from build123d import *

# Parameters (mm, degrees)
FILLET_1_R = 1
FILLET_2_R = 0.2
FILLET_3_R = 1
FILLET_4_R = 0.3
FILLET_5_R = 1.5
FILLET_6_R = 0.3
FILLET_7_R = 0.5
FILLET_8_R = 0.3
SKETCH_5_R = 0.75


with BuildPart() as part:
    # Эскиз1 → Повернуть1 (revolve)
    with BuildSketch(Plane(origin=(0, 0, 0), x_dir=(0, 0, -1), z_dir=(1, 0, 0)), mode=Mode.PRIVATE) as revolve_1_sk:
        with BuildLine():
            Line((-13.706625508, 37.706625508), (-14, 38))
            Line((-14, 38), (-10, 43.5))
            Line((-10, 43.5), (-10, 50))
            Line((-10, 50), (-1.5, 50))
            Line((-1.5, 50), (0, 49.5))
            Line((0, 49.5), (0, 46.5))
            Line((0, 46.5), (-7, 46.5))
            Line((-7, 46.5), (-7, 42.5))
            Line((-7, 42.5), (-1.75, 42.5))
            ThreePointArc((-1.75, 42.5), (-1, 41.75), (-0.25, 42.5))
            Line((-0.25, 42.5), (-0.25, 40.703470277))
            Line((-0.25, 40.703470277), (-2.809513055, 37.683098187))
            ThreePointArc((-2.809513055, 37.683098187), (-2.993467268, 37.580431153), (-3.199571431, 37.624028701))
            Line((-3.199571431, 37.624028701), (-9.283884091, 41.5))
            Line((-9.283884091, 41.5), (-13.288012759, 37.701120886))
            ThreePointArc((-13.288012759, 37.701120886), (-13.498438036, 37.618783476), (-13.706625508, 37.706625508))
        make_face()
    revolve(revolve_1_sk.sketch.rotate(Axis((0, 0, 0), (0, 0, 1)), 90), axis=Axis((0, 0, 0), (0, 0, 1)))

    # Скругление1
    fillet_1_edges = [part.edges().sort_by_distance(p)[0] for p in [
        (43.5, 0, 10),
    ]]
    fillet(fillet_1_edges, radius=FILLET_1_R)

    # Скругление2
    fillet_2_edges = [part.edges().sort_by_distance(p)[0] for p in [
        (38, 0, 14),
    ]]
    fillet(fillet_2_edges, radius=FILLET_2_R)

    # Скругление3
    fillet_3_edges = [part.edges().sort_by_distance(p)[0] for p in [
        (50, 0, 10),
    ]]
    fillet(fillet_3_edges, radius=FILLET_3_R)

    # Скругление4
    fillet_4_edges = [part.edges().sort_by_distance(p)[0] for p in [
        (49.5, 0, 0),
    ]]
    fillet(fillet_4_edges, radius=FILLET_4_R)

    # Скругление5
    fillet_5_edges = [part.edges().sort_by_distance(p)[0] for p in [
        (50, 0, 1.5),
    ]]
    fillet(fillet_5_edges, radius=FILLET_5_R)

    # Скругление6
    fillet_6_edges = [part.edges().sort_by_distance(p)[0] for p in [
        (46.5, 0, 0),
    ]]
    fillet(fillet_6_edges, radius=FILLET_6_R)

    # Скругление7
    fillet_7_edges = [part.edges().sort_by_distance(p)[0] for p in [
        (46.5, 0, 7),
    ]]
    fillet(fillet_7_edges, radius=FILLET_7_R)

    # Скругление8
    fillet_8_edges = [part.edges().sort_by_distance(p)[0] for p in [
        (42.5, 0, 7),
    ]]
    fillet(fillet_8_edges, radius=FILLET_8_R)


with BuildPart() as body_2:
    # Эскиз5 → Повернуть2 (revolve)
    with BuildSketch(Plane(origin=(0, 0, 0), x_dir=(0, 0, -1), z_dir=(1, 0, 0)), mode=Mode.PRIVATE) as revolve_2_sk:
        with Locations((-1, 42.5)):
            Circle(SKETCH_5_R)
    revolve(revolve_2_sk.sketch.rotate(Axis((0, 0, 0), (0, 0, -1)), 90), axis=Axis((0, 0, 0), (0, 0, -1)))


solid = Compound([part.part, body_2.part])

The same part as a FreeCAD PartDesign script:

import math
import FreeCAD as App
import Part
import Sketcher

V = App.Vector
Q = App.Units.Quantity


def edges_at(feature, points):
    """Names of the edges that pass closest to the given points."""
    edges = feature.Shape.Edges
    near = lambda p: min(range(len(edges)), key=lambda i: edges[i].distToShape(Part.Vertex(*p))[0])
    return sorted({f"Edge{near(p) + 1}" for p in points})

doc = App.newDocument("Part")
body = doc.addObject("PartDesign::Body", "Body")

sketch1 = body.newObject("Sketcher::SketchObject", "Sketch")
sketch1.AttachmentSupport = (doc.getObject("YZ_Plane"), [""])
sketch1.MapMode = "FlatFace"
sketch1.addGeometry([
    Part.LineSegment(V(38, 14, 0), V(37.706626, 13.706626, 0)),
    Part.ArcOfCircle(Part.Circle(V(37.918758, 13.494493, 0), V(0, 0, 1), 0.3), math.radians(135), math.radians(223.493245)),
    Part.LineSegment(V(37.701121, 13.288013, 0), V(41.5, 9.283884, 0)),
    Part.LineSegment(V(41.5, 9.283884, 0), V(37.624029, 3.199571, 0)),
    Part.ArcOfCircle(Part.Circle(V(37.877049, 3.038386, 0), V(0, 0, 1), 0.3), math.radians(147.501094), math.radians(229.72151)),
    Part.LineSegment(V(37.683098, 2.809513, 0), V(40.70347, 0.25, 0)),
    Part.LineSegment(V(40.70347, 0.25, 0), V(42.5, 0.25, 0)),
    Part.ArcOfCircle(Part.Circle(V(42.5, 1, 0), V(0, 0, 1), 0.75), math.radians(90), math.radians(270)),
    Part.LineSegment(V(42.5, 1.75, 0), V(42.5, 7, 0)),
    Part.LineSegment(V(42.5, 7, 0), V(46.5, 7, 0)),
    Part.LineSegment(V(46.5, 7, 0), V(46.5, 0, 0)),
    Part.LineSegment(V(46.5, 0, 0), V(49.5, 0, 0)),
    Part.LineSegment(V(49.5, 0, 0), V(50, 1.5, 0)),
    Part.LineSegment(V(50, 1.5, 0), V(50, 10, 0)),
    Part.LineSegment(V(50, 10, 0), V(43.5, 10, 0)),
    Part.LineSegment(V(43.5, 10, 0), V(38, 14, 0)),
], False)
sketch1.addConstraint([
    Sketcher.Constraint("Tangent", 0, 2, 1, 1),
    Sketcher.Constraint("Tangent", 1, 2, 2, 1),
    Sketcher.Constraint("Coincident", 2, 2, 3, 1),
    Sketcher.Constraint("Tangent", 3, 2, 4, 1),
    Sketcher.Constraint("Tangent", 4, 2, 5, 1),
    Sketcher.Constraint("Coincident", 5, 2, 6, 1),
    Sketcher.Constraint("Tangent", 6, 2, 7, 2),
    Sketcher.Constraint("Coincident", 7, 1, 8, 1),
    Sketcher.Constraint("Coincident", 8, 2, 9, 1),
    Sketcher.Constraint("Coincident", 9, 2, 10, 1),
    Sketcher.Constraint("Coincident", 10, 2, 11, 1),
    Sketcher.Constraint("Coincident", 11, 2, 12, 1),
    Sketcher.Constraint("Coincident", 12, 2, 13, 1),
    Sketcher.Constraint("Coincident", 13, 2, 14, 1),
    Sketcher.Constraint("Coincident", 14, 2, 15, 1),
    Sketcher.Constraint("Coincident", 15, 2, 0, 1),
    Sketcher.Constraint("Horizontal", 6),
    Sketcher.Constraint("Vertical", 8),
    Sketcher.Constraint("Horizontal", 9),
    Sketcher.Constraint("Vertical", 10),
    Sketcher.Constraint("Horizontal", 11),
    Sketcher.Constraint("Vertical", 13),
    Sketcher.Constraint("Horizontal", 14),
    Sketcher.Constraint("Equal", 1, 4),
    Sketcher.Constraint("PointOnObject", 10, 2, -1),
    Sketcher.Constraint("Vertical", 6, 2, 7, 1),
    Sketcher.Constraint("Radius", 1, Q("0.3 mm")),
    Sketcher.Constraint("DistanceX", 9, 1, 9, 2, Q("4 mm")),
    Sketcher.Constraint("DistanceX", 11, 1, 11, 2, Q("3 mm")),
    Sketcher.Constraint("DistanceY", 10, 2, 10, 1, Q("7 mm")),
    Sketcher.Constraint("Angle", 0, Q("-135 deg")),
    Sketcher.Constraint("Radius", 7, Q("0.75 mm")),
    Sketcher.Constraint("DistanceX", 14, 2, 14, 1, Q("6.5 mm")),
    Sketcher.Constraint("DistanceY", 13, 1, 13, 2, Q("8.5 mm")),
    Sketcher.Constraint("DistanceY", -1, 1, 7, 3, Q("1 mm")),
    Sketcher.Constraint("DistanceX", -1, 1, 12, 2, Q("50 mm")),
    Sketcher.Constraint("DistanceY", -1, 1, 13, 2, Q("10 mm")),
    Sketcher.Constraint("DistanceX", -1, 1, 15, 2, Q("38 mm")),
    Sketcher.Constraint("DistanceY", -1, 1, 15, 2, Q("14 mm")),
    Sketcher.Constraint("DistanceX", 2, 2, 7, 3, Q("1 mm")),
    Sketcher.Constraint("DistanceX", 2, 2, 14, 2, Q("2 mm")),
    Sketcher.Constraint("DistanceX", 6, 1, 6, 2, Q("1.79653 mm")),
    Sketcher.Constraint("DistanceX", -1, 1, 4, 2, Q("37.683098 mm")),
    Sketcher.Constraint("DistanceY", 4, 2, 1, 2, Q("10.4785 mm")),
    Sketcher.Constraint("Distance", 2, Q("5.519468 mm")),
    Sketcher.Constraint("Distance", 5, Q("3.959009 mm")),
])
revolution = body.newObject("PartDesign::Revolution", "Revolution")
revolution.Profile = sketch1
revolution.ReferenceAxis = (sketch1, ["V_Axis"])
revolution.Angle = 360
doc.recompute()

fillet = body.newObject("PartDesign::Fillet", "Fillet")
fillet.Base = (revolution, edges_at(revolution, [(43.5, 0, 10)]))
fillet.Radius = 1
doc.recompute()

fillet2 = body.newObject("PartDesign::Fillet", "Fillet001")
fillet2.Base = (fillet, edges_at(fillet, [(38, 0, 14)]))
fillet2.Radius = 0.2
doc.recompute()

fillet3 = body.newObject("PartDesign::Fillet", "Fillet002")
fillet3.Base = (fillet2, edges_at(fillet2, [(50, 0, 10)]))
fillet3.Radius = 1
doc.recompute()

fillet4 = body.newObject("PartDesign::Fillet", "Fillet003")
fillet4.Base = (fillet3, edges_at(fillet3, [(49.5, 0, 0)]))
fillet4.Radius = 0.3
doc.recompute()

fillet5 = body.newObject("PartDesign::Fillet", "Fillet004")
fillet5.Base = (fillet4, edges_at(fillet4, [(50, 0, 1.5)]))
fillet5.Radius = 1.5
doc.recompute()

fillet6 = body.newObject("PartDesign::Fillet", "Fillet005")
fillet6.Base = (fillet5, edges_at(fillet5, [(46.5, 0, 0)]))
fillet6.Radius = 0.3
doc.recompute()

fillet7 = body.newObject("PartDesign::Fillet", "Fillet006")
fillet7.Base = (fillet6, edges_at(fillet6, [(46.5, 0, 7)]))
fillet7.Radius = 0.5
doc.recompute()

fillet8 = body.newObject("PartDesign::Fillet", "Fillet007")
fillet8.Base = (fillet7, edges_at(fillet7, [(42.5, 0, 7)]))
fillet8.Radius = 0.3
body2 = doc.addObject("PartDesign::Body", "Body001")

sketch2 = body2.newObject("Sketcher::SketchObject", "Sketch001")
sketch2.AttachmentSupport = (doc.getObject("YZ_Plane001"), [""])
sketch2.MapMode = "FlatFace"
sketch2.addGeometry(Part.Circle(V(42.5, 1, 0), V(0, 0, 1), 0.75), False)
sketch2.addConstraint([
    Sketcher.Constraint("Diameter", 0, Q("1.5 mm")),
    Sketcher.Constraint("DistanceY", -1, 1, 0, 3, Q("1 mm")),
    Sketcher.Constraint("DistanceX", -1, 1, 0, 3, Q("42.5 mm")),
])
revolution2 = body2.newObject("PartDesign::Revolution", "Revolution001")
revolution2.Profile = sketch2
revolution2.ReferenceAxis = (sketch2, ["V_Axis"])
revolution2.Angle = 360

doc.recompute()
